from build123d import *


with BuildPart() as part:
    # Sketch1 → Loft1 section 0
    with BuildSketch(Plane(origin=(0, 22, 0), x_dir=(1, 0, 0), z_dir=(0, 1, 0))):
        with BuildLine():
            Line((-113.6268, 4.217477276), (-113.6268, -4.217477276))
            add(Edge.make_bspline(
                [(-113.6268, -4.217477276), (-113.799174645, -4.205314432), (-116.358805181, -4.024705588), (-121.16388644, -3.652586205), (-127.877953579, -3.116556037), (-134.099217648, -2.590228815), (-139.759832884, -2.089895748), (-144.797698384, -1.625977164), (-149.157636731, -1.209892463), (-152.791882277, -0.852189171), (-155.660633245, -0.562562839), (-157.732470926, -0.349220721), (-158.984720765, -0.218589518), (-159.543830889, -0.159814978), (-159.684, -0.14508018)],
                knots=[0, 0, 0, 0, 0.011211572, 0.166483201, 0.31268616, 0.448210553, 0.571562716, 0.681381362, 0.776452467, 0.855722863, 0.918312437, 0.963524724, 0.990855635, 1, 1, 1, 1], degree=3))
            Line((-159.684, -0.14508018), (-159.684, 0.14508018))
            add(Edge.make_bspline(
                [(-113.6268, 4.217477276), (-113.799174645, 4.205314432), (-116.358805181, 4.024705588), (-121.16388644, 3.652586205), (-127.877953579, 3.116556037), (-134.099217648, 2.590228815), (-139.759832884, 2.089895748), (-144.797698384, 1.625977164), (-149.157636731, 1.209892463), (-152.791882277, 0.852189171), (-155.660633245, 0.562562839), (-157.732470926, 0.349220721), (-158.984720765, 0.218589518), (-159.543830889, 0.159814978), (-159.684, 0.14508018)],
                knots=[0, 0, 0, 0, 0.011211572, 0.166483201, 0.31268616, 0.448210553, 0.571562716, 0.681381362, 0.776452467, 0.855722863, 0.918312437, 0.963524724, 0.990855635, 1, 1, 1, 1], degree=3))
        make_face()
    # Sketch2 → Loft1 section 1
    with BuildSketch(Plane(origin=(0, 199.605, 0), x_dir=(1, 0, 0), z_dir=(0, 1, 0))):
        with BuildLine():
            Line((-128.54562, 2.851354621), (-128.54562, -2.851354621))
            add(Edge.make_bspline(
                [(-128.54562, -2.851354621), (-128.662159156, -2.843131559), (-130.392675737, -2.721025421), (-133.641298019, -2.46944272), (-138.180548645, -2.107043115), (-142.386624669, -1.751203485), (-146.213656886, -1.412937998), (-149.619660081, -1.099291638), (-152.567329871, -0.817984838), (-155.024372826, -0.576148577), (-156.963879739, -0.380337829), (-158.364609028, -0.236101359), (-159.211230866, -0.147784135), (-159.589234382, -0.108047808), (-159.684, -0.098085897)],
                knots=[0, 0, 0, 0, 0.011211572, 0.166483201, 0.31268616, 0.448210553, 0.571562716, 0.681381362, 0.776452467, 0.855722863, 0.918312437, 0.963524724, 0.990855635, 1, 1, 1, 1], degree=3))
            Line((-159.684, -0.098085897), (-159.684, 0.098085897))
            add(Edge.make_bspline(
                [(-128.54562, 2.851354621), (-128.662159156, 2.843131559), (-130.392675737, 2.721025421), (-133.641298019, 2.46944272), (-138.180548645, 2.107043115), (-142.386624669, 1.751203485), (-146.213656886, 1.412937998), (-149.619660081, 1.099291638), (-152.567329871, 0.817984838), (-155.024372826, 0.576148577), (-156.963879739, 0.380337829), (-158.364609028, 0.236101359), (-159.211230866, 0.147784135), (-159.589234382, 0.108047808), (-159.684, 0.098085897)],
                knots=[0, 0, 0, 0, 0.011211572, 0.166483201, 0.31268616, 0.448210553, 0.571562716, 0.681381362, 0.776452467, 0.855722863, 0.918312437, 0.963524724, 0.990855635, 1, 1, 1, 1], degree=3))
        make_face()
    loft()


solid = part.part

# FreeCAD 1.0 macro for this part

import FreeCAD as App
import Part
import Sketcher

doc = App.newDocument("Part")
body = doc.addObject("PartDesign::Body", "Body")

# Sketch on XZ plane
sketch1 = doc.addObject("Sketcher::SketchObject", "Sketch")
body.addObject(sketch1)
sketch1.AttachmentSupport = (doc.XZ_Plane, [""])
sketch1.MapMode = "FlatFace"
sketch1.AttachmentOffset = App.Placement(App.Vector(0, 0, -22), App.Rotation())
sketch1.addGeometry([
    Part.LineSegment(App.Vector(-113.6268, 4.217477, 0), App.Vector(-113.6268, -4.217477, 0)),
    Part.BSplineCurve([App.Vector(-113.6268, -4.217477, 0), App.Vector(-113.799175, -4.205314, 0), App.Vector(-116.358805, -4.024706, 0), App.Vector(-121.163886, -3.652586, 0), App.Vector(-127.877954, -3.116556, 0), App.Vector(-134.099218, -2.590229, 0), App.Vector(-139.759833, -2.089896, 0), App.Vector(-144.797698, -1.625977, 0), App.Vector(-149.157637, -1.209892, 0), App.Vector(-152.791882, -0.852189, 0), App.Vector(-155.660633, -0.562563, 0), App.Vector(-157.732471, -0.349221, 0), App.Vector(-158.984721, -0.21859, 0), App.Vector(-159.543831, -0.159815, 0), App.Vector(-159.684, -0.14508, 0)], [4, 1, 1, 1, 1, 1, 1, 1, 1, 1, 1, 1, 4], [0, 0.011211572, 0.166483201, 0.31268616, 0.448210553, 0.571562716, 0.681381362, 0.776452467, 0.855722863, 0.918312437, 0.963524724, 0.990855635, 1], False, 3, [1, 1, 1, 1, 1, 1, 1, 1, 1, 1, 1, 1, 1, 1, 1], False),
    Part.LineSegment(App.Vector(-159.684, -0.14508, 0), App.Vector(-159.684, 0.14508, 0)),
    Part.BSplineCurve([App.Vector(-113.6268, 4.217477, 0), App.Vector(-113.799175, 4.205314, 0), App.Vector(-116.358805, 4.024706, 0), App.Vector(-121.163886, 3.652586, 0), App.Vector(-127.877954, 3.116556, 0), App.Vector(-134.099218, 2.590229, 0), App.Vector(-139.759833, 2.089896, 0), App.Vector(-144.797698, 1.625977, 0), App.Vector(-149.157637, 1.209892, 0), App.Vector(-152.791882, 0.852189, 0), App.Vector(-155.660633, 0.562563, 0), App.Vector(-157.732471, 0.349221, 0), App.Vector(-158.984721, 0.21859, 0), App.Vector(-159.543831, 0.159815, 0), App.Vector(-159.684, 0.14508, 0)], [4, 1, 1, 1, 1, 1, 1, 1, 1, 1, 1, 1, 4], [0, 0.011211572, 0.166483201, 0.31268616, 0.448210553, 0.571562716, 0.681381362, 0.776452467, 0.855722863, 0.918312437, 0.963524724, 0.990855635, 1], False, 3, [1, 1, 1, 1, 1, 1, 1, 1, 1, 1, 1, 1, 1, 1, 1], False),
], False)
sketch1.addConstraint([
    Sketcher.Constraint("Block", 1),
    Sketcher.Constraint("Block", 3),
    Sketcher.Constraint("Coincident", 0, 2, 1, 1),
    Sketcher.Constraint("Coincident", 1, 2, 2, 1),
    Sketcher.Constraint("Coincident", 2, 2, 3, 2),
    Sketcher.Constraint("Coincident", 3, 1, 0, 1),
])

# Sketch on XZ plane
sketch2 = doc.addObject("Sketcher::SketchObject", "Sketch001")
body.addObject(sketch2)
sketch2.AttachmentSupport = (doc.XZ_Plane, [""])
sketch2.MapMode = "FlatFace"
sketch2.AttachmentOffset = App.Placement(App.Vector(0, 0, -199.605), App.Rotation())
sketch2.addGeometry([
    Part.LineSegment(App.Vector(-128.54562, 2.851355, 0), App.Vector(-128.54562, -2.851355, 0)),
    Part.BSplineCurve([App.Vector(-128.54562, -2.851355, 0), App.Vector(-128.662159, -2.843132, 0), App.Vector(-130.392676, -2.721025, 0), App.Vector(-133.641298, -2.469443, 0), App.Vector(-138.180549, -2.107043, 0), App.Vector(-142.386625, -1.751203, 0), App.Vector(-146.213657, -1.412938, 0), App.Vector(-149.61966, -1.099292, 0), App.Vector(-152.56733, -0.817985, 0), App.Vector(-155.024373, -0.576149, 0), App.Vector(-156.96388, -0.380338, 0), App.Vector(-158.364609, -0.236101, 0), App.Vector(-159.211231, -0.147784, 0), App.Vector(-159.589234, -0.108048, 0), App.Vector(-159.684, -0.098086, 0)], [4, 1, 1, 1, 1, 1, 1, 1, 1, 1, 1, 1, 4], [0, 0.011211572, 0.166483201, 0.31268616, 0.448210553, 0.571562716, 0.681381362, 0.776452467, 0.855722863, 0.918312437, 0.963524724, 0.990855635, 1], False, 3, [1, 1, 1, 1, 1, 1, 1, 1, 1, 1, 1, 1, 1, 1, 1], False),
    Part.LineSegment(App.Vector(-159.684, -0.098086, 0), App.Vector(-159.684, 0.098086, 0)),
    Part.BSplineCurve([App.Vector(-128.54562, 2.851355, 0), App.Vector(-128.662159, 2.843132, 0), App.Vector(-130.392676, 2.721025, 0), App.Vector(-133.641298, 2.469443, 0), App.Vector(-138.180549, 2.107043, 0), App.Vector(-142.386625, 1.751203, 0), App.Vector(-146.213657, 1.412938, 0), App.Vector(-149.61966, 1.099292, 0), App.Vector(-152.56733, 0.817985, 0), App.Vector(-155.024373, 0.576149, 0), App.Vector(-156.96388, 0.380338, 0), App.Vector(-158.364609, 0.236101, 0), App.Vector(-159.211231, 0.147784, 0), App.Vector(-159.589234, 0.108048, 0), App.Vector(-159.684, 0.098086, 0)], [4, 1, 1, 1, 1, 1, 1, 1, 1, 1, 1, 1, 4], [0, 0.011211572, 0.166483201, 0.31268616, 0.448210553, 0.571562716, 0.681381362, 0.776452467, 0.855722863, 0.918312437, 0.963524724, 0.990855635, 1], False, 3, [1, 1, 1, 1, 1, 1, 1, 1, 1, 1, 1, 1, 1, 1, 1], False),
], False)
sketch2.addConstraint([
    Sketcher.Constraint("Block", 1),
    Sketcher.Constraint("Block", 3),
    Sketcher.Constraint("Coincident", 0, 2, 1, 1),
    Sketcher.Constraint("Coincident", 1, 2, 2, 1),
    Sketcher.Constraint("Coincident", 2, 2, 3, 2),
    Sketcher.Constraint("Coincident", 3, 1, 0, 1),
])

additiveloft = doc.addObject("PartDesign::AdditiveLoft", "AdditiveLoft")
body.addObject(additiveloft)
additiveloft.Profile = sketch1
additiveloft.Sections = [sketch2]

doc.recompute()
